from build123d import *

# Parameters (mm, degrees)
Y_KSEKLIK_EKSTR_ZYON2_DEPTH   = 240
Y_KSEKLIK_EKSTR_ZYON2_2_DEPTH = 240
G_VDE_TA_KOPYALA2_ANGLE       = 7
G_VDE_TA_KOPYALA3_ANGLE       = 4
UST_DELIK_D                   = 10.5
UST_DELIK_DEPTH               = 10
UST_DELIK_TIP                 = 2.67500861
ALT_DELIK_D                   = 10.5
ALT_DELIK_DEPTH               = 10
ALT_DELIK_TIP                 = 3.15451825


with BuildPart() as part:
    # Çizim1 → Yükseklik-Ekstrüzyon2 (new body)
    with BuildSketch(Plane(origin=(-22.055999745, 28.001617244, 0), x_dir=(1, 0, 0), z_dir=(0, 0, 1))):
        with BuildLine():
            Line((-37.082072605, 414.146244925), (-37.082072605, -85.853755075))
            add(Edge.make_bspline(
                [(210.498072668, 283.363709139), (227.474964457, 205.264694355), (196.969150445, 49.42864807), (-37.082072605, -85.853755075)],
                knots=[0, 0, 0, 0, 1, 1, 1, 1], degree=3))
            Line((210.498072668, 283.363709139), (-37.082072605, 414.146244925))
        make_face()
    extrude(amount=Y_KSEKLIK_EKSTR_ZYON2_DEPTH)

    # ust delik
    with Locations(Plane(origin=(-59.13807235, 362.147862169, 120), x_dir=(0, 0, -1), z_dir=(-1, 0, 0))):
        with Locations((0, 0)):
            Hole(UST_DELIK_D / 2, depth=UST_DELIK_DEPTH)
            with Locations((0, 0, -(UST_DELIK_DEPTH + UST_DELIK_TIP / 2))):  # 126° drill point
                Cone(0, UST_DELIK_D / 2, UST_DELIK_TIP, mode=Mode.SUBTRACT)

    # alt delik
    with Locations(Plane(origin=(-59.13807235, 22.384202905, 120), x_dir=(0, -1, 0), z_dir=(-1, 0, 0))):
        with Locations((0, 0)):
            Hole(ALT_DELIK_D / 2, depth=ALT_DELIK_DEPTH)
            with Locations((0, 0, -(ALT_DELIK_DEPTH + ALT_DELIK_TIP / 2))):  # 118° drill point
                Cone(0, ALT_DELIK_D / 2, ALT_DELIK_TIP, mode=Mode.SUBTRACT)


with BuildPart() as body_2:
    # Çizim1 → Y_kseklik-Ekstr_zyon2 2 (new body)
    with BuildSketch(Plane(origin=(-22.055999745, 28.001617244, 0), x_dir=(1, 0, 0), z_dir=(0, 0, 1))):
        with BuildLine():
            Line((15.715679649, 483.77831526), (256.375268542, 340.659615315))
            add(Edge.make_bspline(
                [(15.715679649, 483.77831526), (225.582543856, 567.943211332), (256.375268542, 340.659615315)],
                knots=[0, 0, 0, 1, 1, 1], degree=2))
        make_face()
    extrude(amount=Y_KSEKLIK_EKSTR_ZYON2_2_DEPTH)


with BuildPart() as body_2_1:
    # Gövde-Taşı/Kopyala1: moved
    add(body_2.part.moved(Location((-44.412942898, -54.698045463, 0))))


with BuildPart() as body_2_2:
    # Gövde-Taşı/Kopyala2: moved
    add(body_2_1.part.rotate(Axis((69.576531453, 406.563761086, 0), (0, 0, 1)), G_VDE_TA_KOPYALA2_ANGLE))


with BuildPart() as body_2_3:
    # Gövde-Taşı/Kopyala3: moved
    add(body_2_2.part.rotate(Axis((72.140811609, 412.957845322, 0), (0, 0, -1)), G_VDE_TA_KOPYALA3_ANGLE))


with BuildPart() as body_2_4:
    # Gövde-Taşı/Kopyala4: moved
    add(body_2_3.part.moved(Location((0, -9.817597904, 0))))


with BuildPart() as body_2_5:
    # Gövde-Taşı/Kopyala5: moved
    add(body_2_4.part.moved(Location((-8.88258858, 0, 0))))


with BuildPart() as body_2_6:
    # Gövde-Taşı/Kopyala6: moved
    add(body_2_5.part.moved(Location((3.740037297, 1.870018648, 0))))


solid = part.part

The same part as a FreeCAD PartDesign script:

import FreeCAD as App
import Part
import Sketcher
Q = App.Units.Quantity

doc = App.newDocument("Part")
body = doc.addObject("PartDesign::Body", "Body")

# Sketch on XY plane
sketch1 = body.newObject("Sketcher::SketchObject", "Sketch")
sketch1.AttachmentSupport = (doc.getObject("XY_Plane"), [""])
sketch1.MapMode = "FlatFace"
sketch1.addGeometry(Part.LineSegment(App.Vector(-59.138072, 442.147862, 0), App.Vector(-59.138072, -57.852138, 0)), False)
sketch1.addGeometry(Part.BSplineCurve([App.Vector(188.442073, 311.365326, 0), App.Vector(205.418965, 233.266312, 0), App.Vector(174.913151, 77.430265, 0), App.Vector(-59.138072, -57.852138, 0)], [4, 4], [0, 1], False, 3, [1, 1, 1, 1], False), False)
sketch1.addGeometry(Part.LineSegment(App.Vector(188.442073, 311.365326, 0), App.Vector(-59.138072, 442.147862, 0)), False)
sketch1.addConstraint(Sketcher.Constraint("Block", 1))
sketch1.addConstraint(Sketcher.Constraint("Coincident", 0, 2, 1, 2))
sketch1.addConstraint(Sketcher.Constraint("Coincident", 1, 1, 2, 1))
sketch1.addConstraint(Sketcher.Constraint("Coincident", 2, 2, 0, 1))
sketch1.addConstraint(Sketcher.Constraint("Vertical", 0))
sketch1.addConstraint(Sketcher.Constraint("DistanceY", 0, 2, 0, 1, Q("500 mm")))
pad1 = body.newObject("PartDesign::Pad", "Pad")
pad1.Profile = sketch1
pad1.Length = 240

# Sketch on YZ plane
sketch2 = body.newObject("Sketcher::SketchObject", "Sketch001")
sketch2.AttachmentSupport = (doc.getObject("YZ_Plane"), [""])
sketch2.MapMode = "FlatFace"
sketch2.AttachmentOffset = App.Placement(App.Vector(0, 0, -59.138072), App.Rotation())
sketch2.addGeometry(Part.Circle(App.Vector(362, 120, 0), App.Vector(0, 0, 1), 5), False)
sketch2.addConstraint(Sketcher.Constraint("Diameter", 0, Q("10.5 mm")))
sketch2.addConstraint(Sketcher.Constraint("DistanceY", -1, 1, 0, 3, Q("120 mm")))
sketch2.addConstraint(Sketcher.Constraint("DistanceX", -1, 1, 0, 3, Q("362.147862 mm")))
doc.recompute()
hole = body.newObject("PartDesign::Hole", "Hole")
hole.Profile = sketch2
hole.ThreadType = "None"
hole.Diameter = 10.5
hole.DepthType = "Dimension"
hole.Depth = 10
hole.DrillPoint = "Angled"
hole.DrillPointAngle = 126
hole.Reversed = True

# Sketch on YZ plane
sketch3 = body.newObject("Sketcher::SketchObject", "Sketch002")
sketch3.AttachmentSupport = (doc.getObject("YZ_Plane"), [""])
sketch3.MapMode = "FlatFace"
sketch3.AttachmentOffset = App.Placement(App.Vector(0, 0, -59.138072), App.Rotation())
sketch3.addGeometry(Part.Circle(App.Vector(22, 120, 0), App.Vector(0, 0, 1), 5), False)
sketch3.addConstraint(Sketcher.Constraint("Diameter", 0, Q("10.5 mm")))
sketch3.addConstraint(Sketcher.Constraint("DistanceY", -1, 1, 0, 3, Q("120 mm")))
sketch3.addConstraint(Sketcher.Constraint("DistanceX", -1, 1, 0, 3, Q("22.384203 mm")))
doc.recompute()
hole2 = body.newObject("PartDesign::Hole", "Hole001")
hole2.Profile = sketch3
hole2.ThreadType = "None"
hole2.Diameter = 10.5
hole2.DepthType = "Dimension"
hole2.Depth = 10
hole2.DrillPoint = "Angled"
hole2.DrillPointAngle = 118
hole2.Reversed = True
body2 = doc.addObject("PartDesign::Body", "Body001")

# Sketch on XY plane
sketch4 = body2.newObject("Sketcher::SketchObject", "Sketch003")
sketch4.AttachmentSupport = (doc.getObject("XY_Plane001"), [""])
sketch4.MapMode = "FlatFace"
sketch4.addGeometry(Part.LineSegment(App.Vector(-6.34032, 511.779933, 0), App.Vector(234.319269, 368.661233, 0)), False)
sketch4.addGeometry(Part.BSplineCurve([App.Vector(-6.34032, 511.779933, 0), App.Vector(203.526544, 595.944829, 0), App.Vector(234.319269, 368.661233, 0)], [3, 3], [0, 1], False, 2, [1, 1, 1], False), False)
sketch4.addConstraint(Sketcher.Constraint("Block", 1))
sketch4.addConstraint(Sketcher.Constraint("Coincident", 0, 1, 1, 1))
sketch4.addConstraint(Sketcher.Constraint("Coincident", 1, 2, 0, 2))
pad2 = body2.newObject("PartDesign::Pad", "Pad001")
pad2.Profile = sketch4
pad2.Length = 240
body3 = doc.addObject("PartDesign::Body", "Body002")
doc.recompute()

body2.Placement = App.Placement(App.Vector(-44.412943, -54.698045, 0), App.Rotation(App.Vector(0, 0, 1), 0))
boolean = body3.newObject("PartDesign::Boolean", "Boolean")
boolean.Type = "Fuse"
boolean.addObjects([body2])
body4 = doc.addObject("PartDesign::Body", "Body003")
doc.recompute()

body3.Placement = App.Placement(App.Vector(50.066272, -5.448782, 0), App.Rotation(App.Vector(0, 0, 1), 7))
boolean2 = body4.newObject("PartDesign::Boolean", "Boolean001")
boolean2.Type = "Fuse"
boolean2.addObjects([body3])
body5 = doc.addObject("PartDesign::Body", "Body004")
doc.recompute()

body4.Placement = App.Placement(App.Vector(-28.630752, 6.038233, 0), App.Rotation(App.Vector(0, 0, -1), 4))
boolean3 = body5.newObject("PartDesign::Boolean", "Boolean002")
boolean3.Type = "Fuse"
boolean3.addObjects([body4])
body6 = doc.addObject("PartDesign::Body", "Body005")
doc.recompute()

body5.Placement = App.Placement(App.Vector(0, -9.817598, 0), App.Rotation(App.Vector(0, 0, 1), 0))
boolean4 = body6.newObject("PartDesign::Boolean", "Boolean003")
boolean4.Type = "Fuse"
boolean4.addObjects([body5])
body7 = doc.addObject("PartDesign::Body", "Body006")
doc.recompute()

body6.Placement = App.Placement(App.Vector(-8.882589, 0, 0), App.Rotation(App.Vector(0, 0, 1), 0))
boolean5 = body7.newObject("PartDesign::Boolean", "Boolean004")
boolean5.Type = "Fuse"
boolean5.addObjects([body6])
body8 = doc.addObject("PartDesign::Body", "Body007")
doc.recompute()

body7.Placement = App.Placement(App.Vector(3.740037, 1.870019, 0), App.Rotation(App.Vector(0, 0, 1), 0))
boolean6 = body8.newObject("PartDesign::Boolean", "Boolean005")
boolean6.Type = "Fuse"
boolean6.addObjects([body7])
body8.Visibility = False

doc.recompute()
